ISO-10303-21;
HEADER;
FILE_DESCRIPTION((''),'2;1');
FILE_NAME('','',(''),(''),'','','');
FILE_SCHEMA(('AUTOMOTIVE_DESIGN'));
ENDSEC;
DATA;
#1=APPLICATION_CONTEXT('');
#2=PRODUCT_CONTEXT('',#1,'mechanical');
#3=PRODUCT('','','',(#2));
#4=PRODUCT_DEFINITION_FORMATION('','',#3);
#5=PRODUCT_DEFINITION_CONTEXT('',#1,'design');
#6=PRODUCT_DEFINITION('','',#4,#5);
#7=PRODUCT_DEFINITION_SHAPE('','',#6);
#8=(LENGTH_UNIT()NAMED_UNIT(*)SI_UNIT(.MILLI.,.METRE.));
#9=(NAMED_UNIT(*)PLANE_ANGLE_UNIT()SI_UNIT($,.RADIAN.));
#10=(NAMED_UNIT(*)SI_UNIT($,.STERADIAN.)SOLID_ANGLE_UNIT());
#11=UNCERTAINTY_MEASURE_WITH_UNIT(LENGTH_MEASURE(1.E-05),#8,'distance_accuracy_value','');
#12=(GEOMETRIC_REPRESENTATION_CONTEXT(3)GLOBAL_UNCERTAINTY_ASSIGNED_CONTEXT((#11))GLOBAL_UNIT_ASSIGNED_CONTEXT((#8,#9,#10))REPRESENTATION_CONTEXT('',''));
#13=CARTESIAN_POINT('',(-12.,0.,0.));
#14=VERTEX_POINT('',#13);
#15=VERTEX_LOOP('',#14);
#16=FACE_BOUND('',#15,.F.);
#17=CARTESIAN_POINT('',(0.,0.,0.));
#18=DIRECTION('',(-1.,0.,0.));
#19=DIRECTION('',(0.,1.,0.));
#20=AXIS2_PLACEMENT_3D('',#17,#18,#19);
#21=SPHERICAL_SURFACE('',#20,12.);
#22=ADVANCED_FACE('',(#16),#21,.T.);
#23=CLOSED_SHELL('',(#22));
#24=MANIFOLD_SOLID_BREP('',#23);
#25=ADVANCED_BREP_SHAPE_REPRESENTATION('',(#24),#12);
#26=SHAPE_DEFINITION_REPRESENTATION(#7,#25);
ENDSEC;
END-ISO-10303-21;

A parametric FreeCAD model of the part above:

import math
import FreeCAD as App
import Part
import Sketcher

V = App.Vector

doc = App.newDocument("Part")
params = doc.addObject("Spreadsheet::Sheet", "Params")
for row, (alias, value) in enumerate([
    ("sketch1_radius", "12 mm"),
    ("revolution_angle", "360 deg"),
], start=1):
    params.set(f"A{row}", alias)
    params.set(f"B{row}", "=" + value)
    params.setAlias(f"B{row}", alias)

body = doc.addObject("PartDesign::Body", "Body")

# Sketch on XY plane
sketch1 = body.newObject("Sketcher::SketchObject", "Sketch")
sketch1.AttachmentSupport = (doc.getObject("XY_Plane"), [""])
sketch1.MapMode = "FlatFace"
sketch1.addGeometry([
    Part.LineSegment(V(-12, 0, 0), V(12, 0, 0)),
    Part.ArcOfCircle(Part.Circle(V(0, 0, 0), V(0, 0, 1), 12), math.radians(0), math.radians(180)),
], False)
sketch1.addConstraint([
    Sketcher.Constraint("Coincident", 0, 1, 1, 2),
    Sketcher.Constraint("Coincident", 1, 1, 0, 2),
    Sketcher.Constraint("Horizontal", 0),
    Sketcher.Constraint("Coincident", 1, 3, -1, 1),
    Sketcher.Constraint("PointOnObject", 0, 1, -1),
    Sketcher.Constraint("Radius", 1, 12.0),
])
sketch1.setExpression("Constraints[5]", "Params.sketch1_radius")
revolution = body.newObject("PartDesign::Revolution", "Revolution")
revolution.Profile = sketch1
revolution.ReferenceAxis = (sketch1, ["H_Axis"])
revolution.setExpression("Angle", "Params.revolution_angle")

doc.recompute()
